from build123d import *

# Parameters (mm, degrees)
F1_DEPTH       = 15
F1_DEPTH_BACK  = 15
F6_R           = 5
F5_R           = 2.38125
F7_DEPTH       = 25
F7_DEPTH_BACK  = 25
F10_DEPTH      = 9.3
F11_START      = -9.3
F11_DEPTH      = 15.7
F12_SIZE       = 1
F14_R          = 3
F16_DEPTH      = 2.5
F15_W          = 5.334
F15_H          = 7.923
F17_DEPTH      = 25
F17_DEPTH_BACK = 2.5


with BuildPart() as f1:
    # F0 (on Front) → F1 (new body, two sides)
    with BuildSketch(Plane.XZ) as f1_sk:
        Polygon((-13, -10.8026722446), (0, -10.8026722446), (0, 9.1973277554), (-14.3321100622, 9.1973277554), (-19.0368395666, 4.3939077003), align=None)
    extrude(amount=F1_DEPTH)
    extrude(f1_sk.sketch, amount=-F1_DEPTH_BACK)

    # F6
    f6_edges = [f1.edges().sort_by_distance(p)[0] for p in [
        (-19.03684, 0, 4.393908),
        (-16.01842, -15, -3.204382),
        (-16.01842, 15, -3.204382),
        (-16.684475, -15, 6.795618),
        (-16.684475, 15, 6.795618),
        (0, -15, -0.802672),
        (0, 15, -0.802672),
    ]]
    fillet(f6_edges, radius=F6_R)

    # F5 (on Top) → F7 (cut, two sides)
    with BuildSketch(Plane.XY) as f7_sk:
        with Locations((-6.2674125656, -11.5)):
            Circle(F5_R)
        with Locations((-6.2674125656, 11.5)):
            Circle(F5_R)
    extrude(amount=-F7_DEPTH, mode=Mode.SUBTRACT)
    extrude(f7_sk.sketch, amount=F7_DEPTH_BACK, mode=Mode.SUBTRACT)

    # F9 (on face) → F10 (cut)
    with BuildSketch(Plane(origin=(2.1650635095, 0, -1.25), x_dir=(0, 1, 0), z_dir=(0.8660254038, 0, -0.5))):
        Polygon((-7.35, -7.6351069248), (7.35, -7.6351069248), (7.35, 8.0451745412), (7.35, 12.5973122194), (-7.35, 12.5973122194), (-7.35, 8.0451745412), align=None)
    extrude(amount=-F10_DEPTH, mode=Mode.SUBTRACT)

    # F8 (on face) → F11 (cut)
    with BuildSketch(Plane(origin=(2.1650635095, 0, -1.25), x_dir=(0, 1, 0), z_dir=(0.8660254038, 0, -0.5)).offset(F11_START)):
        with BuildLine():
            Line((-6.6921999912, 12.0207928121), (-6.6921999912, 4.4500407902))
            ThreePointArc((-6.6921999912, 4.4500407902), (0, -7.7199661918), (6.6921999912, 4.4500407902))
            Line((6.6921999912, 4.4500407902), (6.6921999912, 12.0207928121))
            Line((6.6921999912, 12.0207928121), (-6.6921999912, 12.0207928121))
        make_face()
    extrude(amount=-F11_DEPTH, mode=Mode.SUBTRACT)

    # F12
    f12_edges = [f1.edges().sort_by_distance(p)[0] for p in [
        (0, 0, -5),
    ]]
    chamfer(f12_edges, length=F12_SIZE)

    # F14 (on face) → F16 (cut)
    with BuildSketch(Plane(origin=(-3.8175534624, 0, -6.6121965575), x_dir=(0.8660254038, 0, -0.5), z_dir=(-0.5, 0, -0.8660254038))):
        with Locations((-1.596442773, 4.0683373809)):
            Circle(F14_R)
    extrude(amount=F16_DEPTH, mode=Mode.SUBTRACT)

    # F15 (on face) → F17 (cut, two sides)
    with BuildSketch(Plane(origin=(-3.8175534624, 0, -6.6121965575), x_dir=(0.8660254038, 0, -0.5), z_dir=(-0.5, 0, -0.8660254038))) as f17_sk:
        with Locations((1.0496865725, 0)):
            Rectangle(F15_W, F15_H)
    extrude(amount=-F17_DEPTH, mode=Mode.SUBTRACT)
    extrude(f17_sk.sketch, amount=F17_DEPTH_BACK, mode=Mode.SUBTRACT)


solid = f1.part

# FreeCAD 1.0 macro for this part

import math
import FreeCAD as App
import Part
import Sketcher


def edges_at(feature, points):
    """Names of the edges that pass closest to the given points."""
    edges = feature.Shape.Edges
    near = lambda p: min(range(len(edges)), key=lambda i: edges[i].distToShape(Part.Vertex(*p))[0])
    return sorted({f"Edge{near(p) + 1}" for p in points})


def add_polygon(sketch, points):
    """Adds a closed chain of lines whose ends are joined by coincident constraints."""
    first, n = sketch.GeometryCount, len(points)
    for a, b in zip(points, points[1:] + points[:1]):
        sketch.addGeometry(Part.LineSegment(App.Vector(*a, 0), App.Vector(*b, 0)), False)
    for i in range(n):
        sketch.addConstraint(Sketcher.Constraint("Coincident", first + i, 2, first + (i + 1) % n, 1))

doc = App.newDocument("Part")
body = doc.addObject("PartDesign::Body", "Body")

# Sketch on XZ plane
sketch1 = body.newObject("Sketcher::SketchObject", "Sketch")
sketch1.AttachmentSupport = (doc.getObject("XZ_Plane"), [""])
sketch1.MapMode = "FlatFace"
add_polygon(sketch1, [(-13, -10.802672), (0, -10.802672), (0, 9.197328), (-14.33211, 9.197328), (-19.03684, 4.393908)])  # lines 0-4
sketch1.addConstraint([
    Sketcher.Constraint("Horizontal", 0),
    Sketcher.Constraint("Vertical", 1),
    Sketcher.Constraint("Horizontal", 2),
    Sketcher.Constraint("PointOnObject", 0, 2, -2),
    Sketcher.Constraint("DistanceX", 0, 1, 0, 2, 13.0),
    Sketcher.Constraint("DistanceY", 1, 1, 1, 2, 20.0),
    Sketcher.Constraint("DistanceX", 2, 2, 2, 1, 14.33211),
    Sketcher.Constraint("Distance", 3, 6.723639),
    Sketcher.Constraint("DistanceX", 3, 2, -1, 1, 19.03684),
    Sketcher.Constraint("DistanceY", 0, 2, -1, 1, 10.802672),
])
pad1 = body.newObject("PartDesign::Pad", "Pad")
pad1.Profile = sketch1
pad1.Type = "TwoLengths"
pad1.Length = 15
pad1.Length2 = 15
doc.recompute()

fillet = body.newObject("PartDesign::Fillet", "Fillet")
fillet.Base = (pad1, edges_at(pad1, [
    (-19.037, 0, 4.394),
    (-16.018, -15, -3.204),
    (-16.018, 15, -3.204),
    (-16.684, -15, 6.796),
    (-16.684, 15, 6.796),
    (0, -15, -0.803),
    (0, 15, -0.803),
]))
fillet.Radius = 5

# Sketch on XY plane
sketch2 = body.newObject("Sketcher::SketchObject", "Sketch001")
sketch2.AttachmentSupport = (doc.getObject("XY_Plane"), [""])
sketch2.MapMode = "FlatFace"
sketch2.addGeometry([
    Part.Circle(App.Vector(-6.267413, -11.5, 0), App.Vector(0, 0, 1), 2.38125),
    Part.Circle(App.Vector(-6.267413, 11.5, 0), App.Vector(0, 0, 1), 2.38125),
], False)
sketch2.addConstraint([
    Sketcher.Constraint("Equal", 0, 1),
    Sketcher.Constraint("Symmetric", 0, 3, 1, 3, -1),
    Sketcher.Constraint("DistanceY", 0, 3, 1, 3, 23.0),
    Sketcher.Constraint("Diameter", 0, 4.7625),
    Sketcher.Constraint("DistanceX", 0, 3, -1, 1, 6.267413),
])
pocket1 = body.newObject("PartDesign::Pocket", "Pocket")
pocket1.Profile = sketch2
pocket1.Type = "ThroughAll"
pocket1.Midplane = True

# Sketch on an angled plane
sketch3 = body.newObject("Sketcher::SketchObject", "Sketch002")
sketch3.Placement = App.Placement(App.Vector(2.165064, 0, -1.25), App.Rotation(App.Vector(0, 1, 0), App.Vector(0.5, 0, 0.866025404), App.Vector(0.866025404, 0, -0.5), "ZXY"))
add_polygon(sketch3, [(-7.35, -7.635107), (7.35, -7.635107), (7.35, 12.597312), (-7.35, 12.597312)])  # lines 0-3
sketch3.addConstraint([
    Sketcher.Constraint("Horizontal", 0),
    Sketcher.Constraint("Vertical", 1),
    Sketcher.Constraint("Horizontal", 2),
    Sketcher.Constraint("Vertical", 3),
    Sketcher.Constraint("DistanceX", 0, 1, 0, 2, 14.7),
    Sketcher.Constraint("DistanceX", -1, 1, 0, 2, 7.35),
    Sketcher.Constraint("DistanceY", 1, 1, 1, 2, 20.232419),
    Sketcher.Constraint("DistanceY", 0, 2, -1, 1, 7.635107),
])
pocket2 = body.newObject("PartDesign::Pocket", "Pocket001")
pocket2.Profile = sketch3
pocket2.Length = 9.3

# Sketch on an angled plane
sketch4 = body.newObject("Sketcher::SketchObject", "Sketch003")
sketch4.Placement = App.Placement(App.Vector(-5.888973, 0, 3.4), App.Rotation(App.Vector(0, 1, 0), App.Vector(0.5, 0, 0.866025404), App.Vector(0.866025404, 0, -0.5), "ZXY"))
sketch4.addGeometry([
    Part.LineSegment(App.Vector(-6.6922, 12.020793, 0), App.Vector(-6.6922, 4.450041, 0)),
    Part.ArcOfCircle(Part.Circle(App.Vector(0, 0.205034, 0), App.Vector(0, 0, 1), 7.925), math.radians(147.612161), math.radians(392.387839)),
    Part.LineSegment(App.Vector(6.6922, 4.450041, 0), App.Vector(6.6922, 12.020793, 0)),
    Part.LineSegment(App.Vector(6.6922, 12.020793, 0), App.Vector(-6.6922, 12.020793, 0)),
], False)
sketch4.addConstraint([
    Sketcher.Constraint("Coincident", 0, 2, 1, 1),
    Sketcher.Constraint("Coincident", 1, 2, 2, 1),
    Sketcher.Constraint("Coincident", 2, 2, 3, 1),
    Sketcher.Constraint("Coincident", 3, 2, 0, 1),
    Sketcher.Constraint("Vertical", 0),
    Sketcher.Constraint("Vertical", 2),
    Sketcher.Constraint("Horizontal", 3),
    Sketcher.Constraint("Symmetric", 0, 2, 1, 2, -2),
    Sketcher.Constraint("Radius", 1, 7.925),
    Sketcher.Constraint("DistanceX", 3, 2, 3, 1, 13.3844),
    Sketcher.Constraint("DistanceY", 0, 2, 0, 1, 7.570752),
    Sketcher.Constraint("DistanceY", -1, 1, 0, 2, 4.450041),
])
pocket3 = body.newObject("PartDesign::Pocket", "Pocket002")
pocket3.Profile = sketch4
pocket3.Length = 15.7
doc.recompute()

chamfer = body.newObject("PartDesign::Chamfer", "Chamfer")
chamfer.Base = (pocket3, edges_at(pocket3, [(0, 0, -5)]))
chamfer.Size = 1

# Sketch on an angled plane
sketch5 = body.newObject("Sketcher::SketchObject", "Sketch004")
sketch5.Placement = App.Placement(App.Vector(-3.817553, 0, -6.612197), App.Rotation(App.Vector(0.866025404, 0, -0.5), App.Vector(0, -1, 0), App.Vector(-0.5, 0, -0.866025404), "ZXY"))
sketch5.addGeometry(Part.Circle(App.Vector(-1.596443, 4.068337, 0), App.Vector(0, 0, 1), 3), False)
sketch5.addConstraint([
    Sketcher.Constraint("Diameter", 0, 6.0),
    Sketcher.Constraint("DistanceX", 0, 3, -1, 1, 1.596443),
    Sketcher.Constraint("DistanceY", -1, 1, 0, 3, 4.068337),
])
pocket4 = body.newObject("PartDesign::Pocket", "Pocket003")
pocket4.Profile = sketch5
pocket4.Length = 2.5
pocket4.Reversed = True

# Sketch on an angled plane
sketch6 = body.newObject("Sketcher::SketchObject", "Sketch005")
sketch6.Placement = App.Placement(App.Vector(-3.817553, 0, -6.612197), App.Rotation(App.Vector(0.866025404, 0, -0.5), App.Vector(0, -1, 0), App.Vector(-0.5, 0, -0.866025404), "ZXY"))
add_polygon(sketch6, [(-1.617313, 3.9615), (-1.617313, -3.9615), (3.716687, -3.9615), (3.716687, 3.9615)])  # lines 0-3
sketch6.addConstraint([
    Sketcher.Constraint("Vertical", 0),
    Sketcher.Constraint("Horizontal", 1),
    Sketcher.Constraint("Vertical", 2),
    Sketcher.Constraint("Horizontal", 3),
    Sketcher.Constraint("DistanceX", 1, 1, 1, 2, 5.334),
    Sketcher.Constraint("DistanceY", 0, 2, 0, 1, 7.923),
    Sketcher.Constraint("DistanceY", 0, 2, -1, 1, 3.9615),
    Sketcher.Constraint("DistanceX", 0, 2, -1, 1, 1.617313),
])
pocket5 = body.newObject("PartDesign::Pocket", "Pocket004")
pocket5.Profile = sketch6
pocket5.Type = "TwoLengths"
pocket5.Length = 25
pocket5.Length2 = 2.5

doc.recompute()
